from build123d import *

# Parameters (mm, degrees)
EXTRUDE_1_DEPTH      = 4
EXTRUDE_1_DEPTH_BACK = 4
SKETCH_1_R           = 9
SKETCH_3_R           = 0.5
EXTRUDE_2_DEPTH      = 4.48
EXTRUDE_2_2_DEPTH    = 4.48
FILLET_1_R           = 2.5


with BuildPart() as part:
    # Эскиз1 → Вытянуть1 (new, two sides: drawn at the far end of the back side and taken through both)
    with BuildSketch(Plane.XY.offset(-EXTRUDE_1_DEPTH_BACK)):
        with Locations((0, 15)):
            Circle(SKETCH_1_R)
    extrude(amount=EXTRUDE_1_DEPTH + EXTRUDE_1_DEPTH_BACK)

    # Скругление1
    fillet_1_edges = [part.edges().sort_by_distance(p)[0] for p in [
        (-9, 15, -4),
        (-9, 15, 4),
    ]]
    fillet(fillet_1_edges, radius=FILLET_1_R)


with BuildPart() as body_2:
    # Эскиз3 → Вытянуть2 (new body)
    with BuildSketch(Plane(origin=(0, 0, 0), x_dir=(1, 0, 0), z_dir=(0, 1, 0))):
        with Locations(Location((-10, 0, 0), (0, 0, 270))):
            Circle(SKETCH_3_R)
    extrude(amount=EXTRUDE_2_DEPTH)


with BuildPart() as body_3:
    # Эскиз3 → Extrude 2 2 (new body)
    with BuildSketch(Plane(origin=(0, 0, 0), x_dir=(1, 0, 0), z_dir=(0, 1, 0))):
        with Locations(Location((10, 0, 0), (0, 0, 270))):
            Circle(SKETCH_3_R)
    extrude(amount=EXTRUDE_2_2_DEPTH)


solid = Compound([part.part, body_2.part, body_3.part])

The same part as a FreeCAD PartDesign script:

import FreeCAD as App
import Part
import Sketcher

V = App.Vector


def edges_at(feature, points):
    """Names of the edges that pass closest to the given points."""
    edges = feature.Shape.Edges
    near = lambda p: min(range(len(edges)), key=lambda i: edges[i].distToShape(Part.Vertex(*p))[0])
    return sorted({f"Edge{near(p) + 1}" for p in points})

doc = App.newDocument("Part")
body = doc.addObject("PartDesign::Body", "Body")

# Sketch on XY plane
sketch1 = body.newObject("Sketcher::SketchObject", "Sketch")
sketch1.AttachmentSupport = (doc.getObject("XY_Plane"), [""])
sketch1.MapMode = "FlatFace"
sketch1.addGeometry(Part.Circle(V(0, 15, 0), V(0, 0, 1), 9), False)
sketch1.addConstraint([
    Sketcher.Constraint("PointOnObject", 0, 3, -2),
    Sketcher.Constraint("Diameter", 0, 18.0),
    Sketcher.Constraint("DistanceY", -1, 1, 0, 3, 15.0),
])
pad1 = body.newObject("PartDesign::Pad", "Pad")
pad1.Profile = sketch1
pad1.Type = "TwoLengths"
pad1.Length = 4
pad1.Length2 = 4
doc.recompute()

fillet = body.newObject("PartDesign::Fillet", "Fillet")
fillet.Base = (pad1, edges_at(pad1, [(-9, 15, -4), (-9, 15, 4)]))
fillet.Radius = 2.5
body2 = doc.addObject("PartDesign::Body", "Body001")

# Sketch on XZ plane
sketch2 = body2.newObject("Sketcher::SketchObject", "Sketch001")
sketch2.AttachmentSupport = (doc.getObject("XZ_Plane001"), [""])
sketch2.MapMode = "FlatFace"
sketch2.addGeometry(Part.Circle(V(-10, 0, 0), V(0, 0, 1), 0.5), False)
sketch2.addConstraint([
    Sketcher.Constraint("PointOnObject", 0, 3, -1),
    Sketcher.Constraint("Diameter", 0, 1.0),
    Sketcher.Constraint("DistanceX", 0, 3, -1, 1, 10.0),
])
pad2 = body2.newObject("PartDesign::Pad", "Pad001")
pad2.Profile = sketch2
pad2.Length = 4.48
pad2.Reversed = True
body3 = doc.addObject("PartDesign::Body", "Body002")

# Sketch on XZ plane
sketch3 = body3.newObject("Sketcher::SketchObject", "Sketch002")
sketch3.AttachmentSupport = (doc.getObject("XZ_Plane002"), [""])
sketch3.MapMode = "FlatFace"
sketch3.addGeometry(Part.Circle(V(10, 0, 0), V(0, 0, 1), 0.5), False)
sketch3.addConstraint([
    Sketcher.Constraint("PointOnObject", 0, 3, -1),
    Sketcher.Constraint("Diameter", 0, 1.0),
    Sketcher.Constraint("DistanceX", -1, 1, 0, 3, 10.0),
])
pad3 = body3.newObject("PartDesign::Pad", "Pad002")
pad3.Profile = sketch3
pad3.Length = 4.48
pad3.Reversed = True

doc.recompute()
